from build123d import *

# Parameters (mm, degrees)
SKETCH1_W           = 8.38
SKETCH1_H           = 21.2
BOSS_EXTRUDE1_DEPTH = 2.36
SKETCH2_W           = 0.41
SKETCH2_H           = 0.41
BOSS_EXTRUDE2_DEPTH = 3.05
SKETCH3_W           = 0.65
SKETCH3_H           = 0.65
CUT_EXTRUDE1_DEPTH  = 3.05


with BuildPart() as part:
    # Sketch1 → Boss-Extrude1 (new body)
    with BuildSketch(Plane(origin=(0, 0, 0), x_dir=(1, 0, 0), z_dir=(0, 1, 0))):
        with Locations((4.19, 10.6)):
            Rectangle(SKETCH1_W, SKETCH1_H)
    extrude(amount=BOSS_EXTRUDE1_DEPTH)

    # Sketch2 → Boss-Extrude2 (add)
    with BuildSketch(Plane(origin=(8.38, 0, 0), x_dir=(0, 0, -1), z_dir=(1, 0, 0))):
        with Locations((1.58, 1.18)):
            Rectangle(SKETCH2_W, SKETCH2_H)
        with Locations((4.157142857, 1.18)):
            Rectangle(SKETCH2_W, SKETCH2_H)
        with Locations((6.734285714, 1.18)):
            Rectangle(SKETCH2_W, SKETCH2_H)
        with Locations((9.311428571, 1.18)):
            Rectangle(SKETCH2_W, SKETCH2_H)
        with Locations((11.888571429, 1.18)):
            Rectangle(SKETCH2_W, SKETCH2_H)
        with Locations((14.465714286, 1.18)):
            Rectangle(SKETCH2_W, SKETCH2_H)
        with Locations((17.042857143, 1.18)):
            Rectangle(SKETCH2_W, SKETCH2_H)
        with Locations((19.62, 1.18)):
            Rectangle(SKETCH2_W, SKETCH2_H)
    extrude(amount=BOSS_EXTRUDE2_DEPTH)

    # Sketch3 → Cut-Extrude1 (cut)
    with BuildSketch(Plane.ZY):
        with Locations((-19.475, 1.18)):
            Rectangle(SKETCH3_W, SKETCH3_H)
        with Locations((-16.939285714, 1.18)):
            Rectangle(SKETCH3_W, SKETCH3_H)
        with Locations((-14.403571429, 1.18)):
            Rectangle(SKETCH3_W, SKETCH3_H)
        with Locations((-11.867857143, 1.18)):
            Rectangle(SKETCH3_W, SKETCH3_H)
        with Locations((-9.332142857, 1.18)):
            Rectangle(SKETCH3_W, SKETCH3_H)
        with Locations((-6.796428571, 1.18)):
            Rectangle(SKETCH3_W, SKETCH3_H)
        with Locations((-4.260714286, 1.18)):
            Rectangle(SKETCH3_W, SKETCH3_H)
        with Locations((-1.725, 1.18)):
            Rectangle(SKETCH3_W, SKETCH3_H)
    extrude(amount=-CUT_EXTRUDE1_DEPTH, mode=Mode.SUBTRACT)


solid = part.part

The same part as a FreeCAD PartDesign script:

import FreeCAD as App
import Part
import Sketcher
Q = App.Units.Quantity

doc = App.newDocument("Part")
body = doc.addObject("PartDesign::Body", "Body")

# Sketch on XZ plane
sketch1 = body.newObject("Sketcher::SketchObject", "Sketch")
sketch1.AttachmentSupport = (doc.getObject("XZ_Plane"), [""])
sketch1.MapMode = "FlatFace"
sketch1.addGeometry([
    Part.LineSegment(App.Vector(0, -21, 0), App.Vector(0, 0, 0)),
    Part.LineSegment(App.Vector(0, 0, 0), App.Vector(8, 0, 0)),
    Part.LineSegment(App.Vector(8, 0, 0), App.Vector(8, -21, 0)),
    Part.LineSegment(App.Vector(8, -21, 0), App.Vector(0, -21, 0)),
], False)
sketch1.addConstraint([
    Sketcher.Constraint("Coincident", 0, 2, 1, 1),
    Sketcher.Constraint("Coincident", 1, 2, 2, 1),
    Sketcher.Constraint("Coincident", 2, 2, 3, 1),
    Sketcher.Constraint("Coincident", 3, 2, 0, 1),
    Sketcher.Constraint("Vertical", 0),
    Sketcher.Constraint("Horizontal", 1),
    Sketcher.Constraint("Vertical", 2),
    Sketcher.Constraint("Horizontal", 3),
    Sketcher.Constraint("Coincident", 0, 2, -1, 1),
    Sketcher.Constraint("DistanceY", 0, 1, 0, 2, Q("21.2 mm")),
    Sketcher.Constraint("DistanceX", 1, 1, 1, 2, Q("8.38 mm")),
])
pad1 = body.newObject("PartDesign::Pad", "Pad")
pad1.Profile = sketch1
pad1.Length = 2.36
pad1.Reversed = True

# Sketch on YZ plane
sketch2 = body.newObject("Sketcher::SketchObject", "Sketch001")
sketch2.AttachmentSupport = (doc.getObject("YZ_Plane"), [""])
sketch2.MapMode = "FlatFace"
sketch2.AttachmentOffset = App.Placement(App.Vector(0, 0, 8.38), App.Rotation())
sketch2.addGeometry([
    Part.LineSegment(App.Vector(1.39, -1.38, 0), App.Vector(0.97, -1.38, 0)),  # 0
    Part.LineSegment(App.Vector(0.97, -1.38, 0), App.Vector(0.97, -1.78, 0)),  # 1
    Part.LineSegment(App.Vector(0.97, -1.78, 0), App.Vector(1.39, -1.78, 0)),  # 2
    Part.LineSegment(App.Vector(1.39, -1.78, 0), App.Vector(1.39, -1.38, 0)),  # 3
    Part.LineSegment(App.Vector(1.39, -3.95, 0), App.Vector(0.97, -3.95, 0)),  # 4
    Part.LineSegment(App.Vector(0.97, -3.95, 0), App.Vector(0.97, -4.36, 0)),  # 5
    Part.LineSegment(App.Vector(0.97, -4.36, 0), App.Vector(1.39, -4.36, 0)),  # 6
    Part.LineSegment(App.Vector(1.39, -4.36, 0), App.Vector(1.39, -3.95, 0)),  # 7
    Part.LineSegment(App.Vector(1.39, -6.53, 0), App.Vector(0.97, -6.53, 0)),  # 8
    Part.LineSegment(App.Vector(0.97, -6.53, 0), App.Vector(0.97, -6.94, 0)),  # 9
    Part.LineSegment(App.Vector(0.97, -6.94, 0), App.Vector(1.39, -6.94, 0)),  # 10
    Part.LineSegment(App.Vector(1.39, -6.94, 0), App.Vector(1.39, -6.53, 0)),  # 11
    Part.LineSegment(App.Vector(1.39, -9.11, 0), App.Vector(0.97, -9.11, 0)),  # 12
    Part.LineSegment(App.Vector(0.97, -9.11, 0), App.Vector(0.97, -9.52, 0)),  # 13
    Part.LineSegment(App.Vector(0.97, -9.52, 0), App.Vector(1.39, -9.52, 0)),  # 14
    Part.LineSegment(App.Vector(1.39, -9.52, 0), App.Vector(1.39, -9.11, 0)),  # 15
    Part.LineSegment(App.Vector(1.39, -11.68, 0), App.Vector(0.97, -11.68, 0)),  # 16
    Part.LineSegment(App.Vector(0.97, -11.68, 0), App.Vector(0.97, -12.09, 0)),  # 17
    Part.LineSegment(App.Vector(0.97, -12.09, 0), App.Vector(1.39, -12.09, 0)),  # 18
    Part.LineSegment(App.Vector(1.39, -12.09, 0), App.Vector(1.39, -11.68, 0)),  # 19
    Part.LineSegment(App.Vector(1.39, -14.26, 0), App.Vector(0.97, -14.26, 0)),  # 20
    Part.LineSegment(App.Vector(0.97, -14.26, 0), App.Vector(0.97, -14.67, 0)),  # 21
    Part.LineSegment(App.Vector(0.97, -14.67, 0), App.Vector(1.39, -14.67, 0)),  # 22
    Part.LineSegment(App.Vector(1.39, -14.67, 0), App.Vector(1.39, -14.26, 0)),  # 23
    Part.LineSegment(App.Vector(1.39, -16.84, 0), App.Vector(0.97, -16.84, 0)),  # 24
    Part.LineSegment(App.Vector(0.97, -16.84, 0), App.Vector(0.97, -17.25, 0)),  # 25
    Part.LineSegment(App.Vector(0.97, -17.25, 0), App.Vector(1.39, -17.25, 0)),  # 26
    Part.LineSegment(App.Vector(1.39, -17.25, 0), App.Vector(1.39, -16.84, 0)),  # 27
    Part.LineSegment(App.Vector(1.39, -19.41, 0), App.Vector(0.97, -19.41, 0)),  # 28
    Part.LineSegment(App.Vector(0.97, -19.41, 0), App.Vector(0.97, -19.82, 0)),  # 29
    Part.LineSegment(App.Vector(0.97, -19.82, 0), App.Vector(1.39, -19.82, 0)),  # 30
    Part.LineSegment(App.Vector(1.39, -19.82, 0), App.Vector(1.39, -19.41, 0)),  # 31
], False)
sketch2.addConstraint([
    Sketcher.Constraint("Coincident", 0, 2, 1, 1),
    Sketcher.Constraint("Coincident", 1, 2, 2, 1),
    Sketcher.Constraint("Coincident", 2, 2, 3, 1),
    Sketcher.Constraint("Coincident", 3, 2, 0, 1),
    Sketcher.Constraint("Coincident", 4, 2, 5, 1),
    Sketcher.Constraint("Coincident", 5, 2, 6, 1),
    Sketcher.Constraint("Coincident", 6, 2, 7, 1),
    Sketcher.Constraint("Coincident", 7, 2, 4, 1),
    Sketcher.Constraint("Coincident", 8, 2, 9, 1),
    Sketcher.Constraint("Coincident", 9, 2, 10, 1),
    Sketcher.Constraint("Coincident", 10, 2, 11, 1),
    Sketcher.Constraint("Coincident", 11, 2, 8, 1),
    Sketcher.Constraint("Coincident", 12, 2, 13, 1),
    Sketcher.Constraint("Coincident", 13, 2, 14, 1),
    Sketcher.Constraint("Coincident", 14, 2, 15, 1),
    Sketcher.Constraint("Coincident", 15, 2, 12, 1),
    Sketcher.Constraint("Coincident", 16, 2, 17, 1),
    Sketcher.Constraint("Coincident", 17, 2, 18, 1),
    Sketcher.Constraint("Coincident", 18, 2, 19, 1),
    Sketcher.Constraint("Coincident", 19, 2, 16, 1),
    Sketcher.Constraint("Coincident", 20, 2, 21, 1),
    Sketcher.Constraint("Coincident", 21, 2, 22, 1),
    Sketcher.Constraint("Coincident", 22, 2, 23, 1),
    Sketcher.Constraint("Coincident", 23, 2, 20, 1),
    Sketcher.Constraint("Coincident", 24, 2, 25, 1),
    Sketcher.Constraint("Coincident", 25, 2, 26, 1),
    Sketcher.Constraint("Coincident", 26, 2, 27, 1),
    Sketcher.Constraint("Coincident", 27, 2, 24, 1),
    Sketcher.Constraint("Coincident", 28, 2, 29, 1),
    Sketcher.Constraint("Coincident", 29, 2, 30, 1),
    Sketcher.Constraint("Coincident", 30, 2, 31, 1),
    Sketcher.Constraint("Coincident", 31, 2, 28, 1),
    Sketcher.Constraint("Horizontal", 0),
    Sketcher.Constraint("Vertical", 1),
    Sketcher.Constraint("Horizontal", 2),
    Sketcher.Constraint("Vertical", 3),
    Sketcher.Constraint("Horizontal", 4),
    Sketcher.Constraint("Vertical", 5),
    Sketcher.Constraint("Horizontal", 6),
    Sketcher.Constraint("Vertical", 7),
    Sketcher.Constraint("Horizontal", 8),
    Sketcher.Constraint("Vertical", 9),
    Sketcher.Constraint("Horizontal", 10),
    Sketcher.Constraint("Vertical", 11),
    Sketcher.Constraint("Horizontal", 12),
    Sketcher.Constraint("Vertical", 13),
    Sketcher.Constraint("Horizontal", 14),
    Sketcher.Constraint("Vertical", 15),
    Sketcher.Constraint("Horizontal", 16),
    Sketcher.Constraint("Vertical", 17),
    Sketcher.Constraint("Horizontal", 18),
    Sketcher.Constraint("Vertical", 19),
    Sketcher.Constraint("Horizontal", 20),
    Sketcher.Constraint("Vertical", 21),
    Sketcher.Constraint("Horizontal", 22),
    Sketcher.Constraint("Vertical", 23),
    Sketcher.Constraint("Horizontal", 24),
    Sketcher.Constraint("Vertical", 25),
    Sketcher.Constraint("Horizontal", 26),
    Sketcher.Constraint("Vertical", 27),
    Sketcher.Constraint("Horizontal", 28),
    Sketcher.Constraint("Vertical", 29),
    Sketcher.Constraint("Horizontal", 30),
    Sketcher.Constraint("Vertical", 31),
    Sketcher.Constraint("Vertical", 1, 2, 4, 2),
    Sketcher.Constraint("Vertical", 3, 2, 6, 2),
    Sketcher.Constraint("Vertical", 5, 2, 8, 2),
    Sketcher.Constraint("Vertical", 7, 2, 10, 2),
    Sketcher.Constraint("Vertical", 9, 2, 12, 2),
    Sketcher.Constraint("Vertical", 11, 2, 14, 2),
    Sketcher.Constraint("Vertical", 13, 2, 16, 2),
    Sketcher.Constraint("Vertical", 15, 2, 18, 2),
    Sketcher.Constraint("Vertical", 17, 2, 20, 2),
    Sketcher.Constraint("Vertical", 19, 2, 22, 2),
    Sketcher.Constraint("Vertical", 21, 2, 24, 2),
    Sketcher.Constraint("Vertical", 23, 2, 26, 2),
    Sketcher.Constraint("Vertical", 25, 2, 28, 2),
    Sketcher.Constraint("Vertical", 27, 2, 30, 2),
    Sketcher.Constraint("Equal", 30, 1),
    Sketcher.Constraint("Equal", 3, 5),
    Sketcher.Constraint("Equal", 7, 9),
    Sketcher.Constraint("Equal", 11, 13),
    Sketcher.Constraint("Equal", 15, 17),
    Sketcher.Constraint("Equal", 19, 21),
    Sketcher.Constraint("Equal", 23, 25),
    Sketcher.Constraint("Equal", 27, 29),
    Sketcher.Constraint("DistanceX", 0, 2, 0, 1, Q("0.41 mm")),
    Sketcher.Constraint("DistanceX", -1, 1, 0, 2, Q("0.975 mm")),
    Sketcher.Constraint("DistanceY", 0, 2, -1, 1, Q("1.375 mm")),
    Sketcher.Constraint("DistanceY", 28, 2, -1, 1, Q("19.415 mm")),
    Sketcher.Constraint("DistanceY", 12, 2, -1, 1, Q("9.106429 mm")),
    Sketcher.Constraint("DistanceY", 16, 2, -1, 1, Q("11.683571 mm")),
    Sketcher.Constraint("DistanceY", 4, 2, -1, 1, Q("3.952143 mm")),
    Sketcher.Constraint("DistanceY", 8, 2, -1, 1, Q("6.529286 mm")),
    Sketcher.Constraint("DistanceY", 20, 2, -1, 1, Q("14.260714 mm")),
    Sketcher.Constraint("DistanceY", 24, 2, -1, 1, Q("16.837857 mm")),
])
pad2 = body.newObject("PartDesign::Pad", "Pad001")
pad2.Profile = sketch2
pad2.Length = 3.05

# Sketch on YZ plane
sketch3 = body.newObject("Sketcher::SketchObject", "Sketch002")
sketch3.AttachmentSupport = (doc.getObject("YZ_Plane"), [""])
sketch3.MapMode = "FlatFace"
sketch3.addGeometry([
    Part.LineSegment(App.Vector(1.5, -19.8, 0), App.Vector(0.9, -19.8, 0)),  # 0
    Part.LineSegment(App.Vector(0.9, -19.8, 0), App.Vector(0.9, -19.1, 0)),  # 1
    Part.LineSegment(App.Vector(0.9, -19.1, 0), App.Vector(1.5, -19.1, 0)),  # 2
    Part.LineSegment(App.Vector(1.5, -19.1, 0), App.Vector(1.5, -19.8, 0)),  # 3
    Part.LineSegment(App.Vector(1.5, -17.3, 0), App.Vector(0.9, -17.3, 0)),  # 4
    Part.LineSegment(App.Vector(0.9, -17.3, 0), App.Vector(0.9, -16.6, 0)),  # 5
    Part.LineSegment(App.Vector(0.9, -16.6, 0), App.Vector(1.5, -16.6, 0)),  # 6
    Part.LineSegment(App.Vector(1.5, -16.6, 0), App.Vector(1.5, -17.3, 0)),  # 7
    Part.LineSegment(App.Vector(1.5, -14.7, 0), App.Vector(0.9, -14.7, 0)),  # 8
    Part.LineSegment(App.Vector(0.9, -14.7, 0), App.Vector(0.9, -14.1, 0)),  # 9
    Part.LineSegment(App.Vector(0.9, -14.1, 0), App.Vector(1.5, -14.1, 0)),  # 10
    Part.LineSegment(App.Vector(1.5, -14.1, 0), App.Vector(1.5, -14.7, 0)),  # 11
    Part.LineSegment(App.Vector(1.5, -12.2, 0), App.Vector(0.9, -12.2, 0)),  # 12
    Part.LineSegment(App.Vector(0.9, -12.2, 0), App.Vector(0.9, -11.5, 0)),  # 13
    Part.LineSegment(App.Vector(0.9, -11.5, 0), App.Vector(1.5, -11.5, 0)),  # 14
    Part.LineSegment(App.Vector(1.5, -11.5, 0), App.Vector(1.5, -12.2, 0)),  # 15
    Part.LineSegment(App.Vector(1.5, -9.7, 0), App.Vector(0.9, -9.7, 0)),  # 16
    Part.LineSegment(App.Vector(0.9, -9.7, 0), App.Vector(0.9, -9, 0)),  # 17
    Part.LineSegment(App.Vector(0.9, -9, 0), App.Vector(1.5, -9, 0)),  # 18
    Part.LineSegment(App.Vector(1.5, -9, 0), App.Vector(1.5, -9.7, 0)),  # 19
    Part.LineSegment(App.Vector(1.5, -7.1, 0), App.Vector(0.9, -7.1, 0)),  # 20
    Part.LineSegment(App.Vector(0.9, -7.1, 0), App.Vector(0.9, -6.5, 0)),  # 21
    Part.LineSegment(App.Vector(0.9, -6.5, 0), App.Vector(1.5, -6.5, 0)),  # 22
    Part.LineSegment(App.Vector(1.5, -6.5, 0), App.Vector(1.5, -7.1, 0)),  # 23
    Part.LineSegment(App.Vector(1.5, -4.6, 0), App.Vector(0.9, -4.6, 0)),  # 24
    Part.LineSegment(App.Vector(0.9, -4.6, 0), App.Vector(0.9, -3.9, 0)),  # 25
    Part.LineSegment(App.Vector(0.9, -3.9, 0), App.Vector(1.5, -3.9, 0)),  # 26
    Part.LineSegment(App.Vector(1.5, -3.9, 0), App.Vector(1.5, -4.6, 0)),  # 27
    Part.LineSegment(App.Vector(1.5, -2, 0), App.Vector(0.9, -2, 0)),  # 28
    Part.LineSegment(App.Vector(0.9, -2, 0), App.Vector(0.9, -1.4, 0)),  # 29
    Part.LineSegment(App.Vector(0.9, -1.4, 0), App.Vector(1.5, -1.4, 0)),  # 30
    Part.LineSegment(App.Vector(1.5, -1.4, 0), App.Vector(1.5, -2, 0)),  # 31
], False)
sketch3.addConstraint([
    Sketcher.Constraint("Coincident", 0, 2, 1, 1),
    Sketcher.Constraint("Coincident", 1, 2, 2, 1),
    Sketcher.Constraint("Coincident", 2, 2, 3, 1),
    Sketcher.Constraint("Coincident", 3, 2, 0, 1),
    Sketcher.Constraint("Coincident", 4, 2, 5, 1),
    Sketcher.Constraint("Coincident", 5, 2, 6, 1),
    Sketcher.Constraint("Coincident", 6, 2, 7, 1),
    Sketcher.Constraint("Coincident", 7, 2, 4, 1),
    Sketcher.Constraint("Coincident", 8, 2, 9, 1),
    Sketcher.Constraint("Coincident", 9, 2, 10, 1),
    Sketcher.Constraint("Coincident", 10, 2, 11, 1),
    Sketcher.Constraint("Coincident", 11, 2, 8, 1),
    Sketcher.Constraint("Coincident", 12, 2, 13, 1),
    Sketcher.Constraint("Coincident", 13, 2, 14, 1),
    Sketcher.Constraint("Coincident", 14, 2, 15, 1),
    Sketcher.Constraint("Coincident", 15, 2, 12, 1),
    Sketcher.Constraint("Coincident", 16, 2, 17, 1),
    Sketcher.Constraint("Coincident", 17, 2, 18, 1),
    Sketcher.Constraint("Coincident", 18, 2, 19, 1),
    Sketcher.Constraint("Coincident", 19, 2, 16, 1),
    Sketcher.Constraint("Coincident", 20, 2, 21, 1),
    Sketcher.Constraint("Coincident", 21, 2, 22, 1),
    Sketcher.Constraint("Coincident", 22, 2, 23, 1),
    Sketcher.Constraint("Coincident", 23, 2, 20, 1),
    Sketcher.Constraint("Coincident", 24, 2, 25, 1),
    Sketcher.Constraint("Coincident", 25, 2, 26, 1),
    Sketcher.Constraint("Coincident", 26, 2, 27, 1),
    Sketcher.Constraint("Coincident", 27, 2, 24, 1),
    Sketcher.Constraint("Coincident", 28, 2, 29, 1),
    Sketcher.Constraint("Coincident", 29, 2, 30, 1),
    Sketcher.Constraint("Coincident", 30, 2, 31, 1),
    Sketcher.Constraint("Coincident", 31, 2, 28, 1),
    Sketcher.Constraint("Horizontal", 0),
    Sketcher.Constraint("Vertical", 1),
    Sketcher.Constraint("Horizontal", 2),
    Sketcher.Constraint("Vertical", 3),
    Sketcher.Constraint("Horizontal", 4),
    Sketcher.Constraint("Vertical", 5),
    Sketcher.Constraint("Horizontal", 6),
    Sketcher.Constraint("Vertical", 7),
    Sketcher.Constraint("Horizontal", 8),
    Sketcher.Constraint("Vertical", 9),
    Sketcher.Constraint("Horizontal", 10),
    Sketcher.Constraint("Vertical", 11),
    Sketcher.Constraint("Horizontal", 12),
    Sketcher.Constraint("Vertical", 13),
    Sketcher.Constraint("Horizontal", 14),
    Sketcher.Constraint("Vertical", 15),
    Sketcher.Constraint("Horizontal", 16),
    Sketcher.Constraint("Vertical", 17),
    Sketcher.Constraint("Horizontal", 18),
    Sketcher.Constraint("Vertical", 19),
    Sketcher.Constraint("Horizontal", 20),
    Sketcher.Constraint("Vertical", 21),
    Sketcher.Constraint("Horizontal", 22),
    Sketcher.Constraint("Vertical", 23),
    Sketcher.Constraint("Horizontal", 24),
    Sketcher.Constraint("Vertical", 25),
    Sketcher.Constraint("Horizontal", 26),
    Sketcher.Constraint("Vertical", 27),
    Sketcher.Constraint("Horizontal", 28),
    Sketcher.Constraint("Vertical", 29),
    Sketcher.Constraint("Horizontal", 30),
    Sketcher.Constraint("Vertical", 31),
    Sketcher.Constraint("Vertical", 1, 2, 4, 2),
    Sketcher.Constraint("Vertical", 3, 2, 6, 2),
    Sketcher.Constraint("Vertical", 5, 2, 8, 2),
    Sketcher.Constraint("Vertical", 7, 2, 10, 2),
    Sketcher.Constraint("Vertical", 9, 2, 12, 2),
    Sketcher.Constraint("Vertical", 11, 2, 14, 2),
    Sketcher.Constraint("Vertical", 13, 2, 16, 2),
    Sketcher.Constraint("Vertical", 15, 2, 18, 2),
    Sketcher.Constraint("Vertical", 17, 2, 20, 2),
    Sketcher.Constraint("Vertical", 19, 2, 22, 2),
    Sketcher.Constraint("Vertical", 21, 2, 24, 2),
    Sketcher.Constraint("Vertical", 23, 2, 26, 2),
    Sketcher.Constraint("Vertical", 25, 2, 28, 2),
    Sketcher.Constraint("Vertical", 27, 2, 30, 2),
    Sketcher.Constraint("Equal", 30, 1),
    Sketcher.Constraint("Equal", 3, 5),
    Sketcher.Constraint("Equal", 7, 9),
    Sketcher.Constraint("Equal", 11, 13),
    Sketcher.Constraint("Equal", 15, 17),
    Sketcher.Constraint("Equal", 19, 21),
    Sketcher.Constraint("Equal", 23, 25),
    Sketcher.Constraint("Equal", 27, 29),
    Sketcher.Constraint("DistanceX", 0, 2, 0, 1, Q("0.65 mm")),
    Sketcher.Constraint("DistanceY", 0, 2, -1, 1, Q("19.8 mm")),
    Sketcher.Constraint("DistanceY", 29, 2, -1, 1, Q("1.4 mm")),
    Sketcher.Constraint("DistanceX", -1, 1, 0, 2, Q("0.855 mm")),
    Sketcher.Constraint("DistanceY", 8, 2, -1, 1, Q("14.728571 mm")),
    Sketcher.Constraint("DistanceY", 20, 2, -1, 1, Q("7.121429 mm")),
    Sketcher.Constraint("DistanceY", 5, 2, 12, 2, Q("4.421429 mm")),
    Sketcher.Constraint("DistanceY", 9, 2, 16, 2, Q("4.421429 mm")),
    Sketcher.Constraint("DistanceY", 13, 2, 20, 2, Q("4.421429 mm")),
    Sketcher.Constraint("DistanceY", 17, 2, 24, 2, Q("4.421429 mm")),
])
pocket1 = body.newObject("PartDesign::Pocket", "Pocket")
pocket1.Profile = sketch3
pocket1.Length = 3.05
pocket1.Reversed = True

doc.recompute()
